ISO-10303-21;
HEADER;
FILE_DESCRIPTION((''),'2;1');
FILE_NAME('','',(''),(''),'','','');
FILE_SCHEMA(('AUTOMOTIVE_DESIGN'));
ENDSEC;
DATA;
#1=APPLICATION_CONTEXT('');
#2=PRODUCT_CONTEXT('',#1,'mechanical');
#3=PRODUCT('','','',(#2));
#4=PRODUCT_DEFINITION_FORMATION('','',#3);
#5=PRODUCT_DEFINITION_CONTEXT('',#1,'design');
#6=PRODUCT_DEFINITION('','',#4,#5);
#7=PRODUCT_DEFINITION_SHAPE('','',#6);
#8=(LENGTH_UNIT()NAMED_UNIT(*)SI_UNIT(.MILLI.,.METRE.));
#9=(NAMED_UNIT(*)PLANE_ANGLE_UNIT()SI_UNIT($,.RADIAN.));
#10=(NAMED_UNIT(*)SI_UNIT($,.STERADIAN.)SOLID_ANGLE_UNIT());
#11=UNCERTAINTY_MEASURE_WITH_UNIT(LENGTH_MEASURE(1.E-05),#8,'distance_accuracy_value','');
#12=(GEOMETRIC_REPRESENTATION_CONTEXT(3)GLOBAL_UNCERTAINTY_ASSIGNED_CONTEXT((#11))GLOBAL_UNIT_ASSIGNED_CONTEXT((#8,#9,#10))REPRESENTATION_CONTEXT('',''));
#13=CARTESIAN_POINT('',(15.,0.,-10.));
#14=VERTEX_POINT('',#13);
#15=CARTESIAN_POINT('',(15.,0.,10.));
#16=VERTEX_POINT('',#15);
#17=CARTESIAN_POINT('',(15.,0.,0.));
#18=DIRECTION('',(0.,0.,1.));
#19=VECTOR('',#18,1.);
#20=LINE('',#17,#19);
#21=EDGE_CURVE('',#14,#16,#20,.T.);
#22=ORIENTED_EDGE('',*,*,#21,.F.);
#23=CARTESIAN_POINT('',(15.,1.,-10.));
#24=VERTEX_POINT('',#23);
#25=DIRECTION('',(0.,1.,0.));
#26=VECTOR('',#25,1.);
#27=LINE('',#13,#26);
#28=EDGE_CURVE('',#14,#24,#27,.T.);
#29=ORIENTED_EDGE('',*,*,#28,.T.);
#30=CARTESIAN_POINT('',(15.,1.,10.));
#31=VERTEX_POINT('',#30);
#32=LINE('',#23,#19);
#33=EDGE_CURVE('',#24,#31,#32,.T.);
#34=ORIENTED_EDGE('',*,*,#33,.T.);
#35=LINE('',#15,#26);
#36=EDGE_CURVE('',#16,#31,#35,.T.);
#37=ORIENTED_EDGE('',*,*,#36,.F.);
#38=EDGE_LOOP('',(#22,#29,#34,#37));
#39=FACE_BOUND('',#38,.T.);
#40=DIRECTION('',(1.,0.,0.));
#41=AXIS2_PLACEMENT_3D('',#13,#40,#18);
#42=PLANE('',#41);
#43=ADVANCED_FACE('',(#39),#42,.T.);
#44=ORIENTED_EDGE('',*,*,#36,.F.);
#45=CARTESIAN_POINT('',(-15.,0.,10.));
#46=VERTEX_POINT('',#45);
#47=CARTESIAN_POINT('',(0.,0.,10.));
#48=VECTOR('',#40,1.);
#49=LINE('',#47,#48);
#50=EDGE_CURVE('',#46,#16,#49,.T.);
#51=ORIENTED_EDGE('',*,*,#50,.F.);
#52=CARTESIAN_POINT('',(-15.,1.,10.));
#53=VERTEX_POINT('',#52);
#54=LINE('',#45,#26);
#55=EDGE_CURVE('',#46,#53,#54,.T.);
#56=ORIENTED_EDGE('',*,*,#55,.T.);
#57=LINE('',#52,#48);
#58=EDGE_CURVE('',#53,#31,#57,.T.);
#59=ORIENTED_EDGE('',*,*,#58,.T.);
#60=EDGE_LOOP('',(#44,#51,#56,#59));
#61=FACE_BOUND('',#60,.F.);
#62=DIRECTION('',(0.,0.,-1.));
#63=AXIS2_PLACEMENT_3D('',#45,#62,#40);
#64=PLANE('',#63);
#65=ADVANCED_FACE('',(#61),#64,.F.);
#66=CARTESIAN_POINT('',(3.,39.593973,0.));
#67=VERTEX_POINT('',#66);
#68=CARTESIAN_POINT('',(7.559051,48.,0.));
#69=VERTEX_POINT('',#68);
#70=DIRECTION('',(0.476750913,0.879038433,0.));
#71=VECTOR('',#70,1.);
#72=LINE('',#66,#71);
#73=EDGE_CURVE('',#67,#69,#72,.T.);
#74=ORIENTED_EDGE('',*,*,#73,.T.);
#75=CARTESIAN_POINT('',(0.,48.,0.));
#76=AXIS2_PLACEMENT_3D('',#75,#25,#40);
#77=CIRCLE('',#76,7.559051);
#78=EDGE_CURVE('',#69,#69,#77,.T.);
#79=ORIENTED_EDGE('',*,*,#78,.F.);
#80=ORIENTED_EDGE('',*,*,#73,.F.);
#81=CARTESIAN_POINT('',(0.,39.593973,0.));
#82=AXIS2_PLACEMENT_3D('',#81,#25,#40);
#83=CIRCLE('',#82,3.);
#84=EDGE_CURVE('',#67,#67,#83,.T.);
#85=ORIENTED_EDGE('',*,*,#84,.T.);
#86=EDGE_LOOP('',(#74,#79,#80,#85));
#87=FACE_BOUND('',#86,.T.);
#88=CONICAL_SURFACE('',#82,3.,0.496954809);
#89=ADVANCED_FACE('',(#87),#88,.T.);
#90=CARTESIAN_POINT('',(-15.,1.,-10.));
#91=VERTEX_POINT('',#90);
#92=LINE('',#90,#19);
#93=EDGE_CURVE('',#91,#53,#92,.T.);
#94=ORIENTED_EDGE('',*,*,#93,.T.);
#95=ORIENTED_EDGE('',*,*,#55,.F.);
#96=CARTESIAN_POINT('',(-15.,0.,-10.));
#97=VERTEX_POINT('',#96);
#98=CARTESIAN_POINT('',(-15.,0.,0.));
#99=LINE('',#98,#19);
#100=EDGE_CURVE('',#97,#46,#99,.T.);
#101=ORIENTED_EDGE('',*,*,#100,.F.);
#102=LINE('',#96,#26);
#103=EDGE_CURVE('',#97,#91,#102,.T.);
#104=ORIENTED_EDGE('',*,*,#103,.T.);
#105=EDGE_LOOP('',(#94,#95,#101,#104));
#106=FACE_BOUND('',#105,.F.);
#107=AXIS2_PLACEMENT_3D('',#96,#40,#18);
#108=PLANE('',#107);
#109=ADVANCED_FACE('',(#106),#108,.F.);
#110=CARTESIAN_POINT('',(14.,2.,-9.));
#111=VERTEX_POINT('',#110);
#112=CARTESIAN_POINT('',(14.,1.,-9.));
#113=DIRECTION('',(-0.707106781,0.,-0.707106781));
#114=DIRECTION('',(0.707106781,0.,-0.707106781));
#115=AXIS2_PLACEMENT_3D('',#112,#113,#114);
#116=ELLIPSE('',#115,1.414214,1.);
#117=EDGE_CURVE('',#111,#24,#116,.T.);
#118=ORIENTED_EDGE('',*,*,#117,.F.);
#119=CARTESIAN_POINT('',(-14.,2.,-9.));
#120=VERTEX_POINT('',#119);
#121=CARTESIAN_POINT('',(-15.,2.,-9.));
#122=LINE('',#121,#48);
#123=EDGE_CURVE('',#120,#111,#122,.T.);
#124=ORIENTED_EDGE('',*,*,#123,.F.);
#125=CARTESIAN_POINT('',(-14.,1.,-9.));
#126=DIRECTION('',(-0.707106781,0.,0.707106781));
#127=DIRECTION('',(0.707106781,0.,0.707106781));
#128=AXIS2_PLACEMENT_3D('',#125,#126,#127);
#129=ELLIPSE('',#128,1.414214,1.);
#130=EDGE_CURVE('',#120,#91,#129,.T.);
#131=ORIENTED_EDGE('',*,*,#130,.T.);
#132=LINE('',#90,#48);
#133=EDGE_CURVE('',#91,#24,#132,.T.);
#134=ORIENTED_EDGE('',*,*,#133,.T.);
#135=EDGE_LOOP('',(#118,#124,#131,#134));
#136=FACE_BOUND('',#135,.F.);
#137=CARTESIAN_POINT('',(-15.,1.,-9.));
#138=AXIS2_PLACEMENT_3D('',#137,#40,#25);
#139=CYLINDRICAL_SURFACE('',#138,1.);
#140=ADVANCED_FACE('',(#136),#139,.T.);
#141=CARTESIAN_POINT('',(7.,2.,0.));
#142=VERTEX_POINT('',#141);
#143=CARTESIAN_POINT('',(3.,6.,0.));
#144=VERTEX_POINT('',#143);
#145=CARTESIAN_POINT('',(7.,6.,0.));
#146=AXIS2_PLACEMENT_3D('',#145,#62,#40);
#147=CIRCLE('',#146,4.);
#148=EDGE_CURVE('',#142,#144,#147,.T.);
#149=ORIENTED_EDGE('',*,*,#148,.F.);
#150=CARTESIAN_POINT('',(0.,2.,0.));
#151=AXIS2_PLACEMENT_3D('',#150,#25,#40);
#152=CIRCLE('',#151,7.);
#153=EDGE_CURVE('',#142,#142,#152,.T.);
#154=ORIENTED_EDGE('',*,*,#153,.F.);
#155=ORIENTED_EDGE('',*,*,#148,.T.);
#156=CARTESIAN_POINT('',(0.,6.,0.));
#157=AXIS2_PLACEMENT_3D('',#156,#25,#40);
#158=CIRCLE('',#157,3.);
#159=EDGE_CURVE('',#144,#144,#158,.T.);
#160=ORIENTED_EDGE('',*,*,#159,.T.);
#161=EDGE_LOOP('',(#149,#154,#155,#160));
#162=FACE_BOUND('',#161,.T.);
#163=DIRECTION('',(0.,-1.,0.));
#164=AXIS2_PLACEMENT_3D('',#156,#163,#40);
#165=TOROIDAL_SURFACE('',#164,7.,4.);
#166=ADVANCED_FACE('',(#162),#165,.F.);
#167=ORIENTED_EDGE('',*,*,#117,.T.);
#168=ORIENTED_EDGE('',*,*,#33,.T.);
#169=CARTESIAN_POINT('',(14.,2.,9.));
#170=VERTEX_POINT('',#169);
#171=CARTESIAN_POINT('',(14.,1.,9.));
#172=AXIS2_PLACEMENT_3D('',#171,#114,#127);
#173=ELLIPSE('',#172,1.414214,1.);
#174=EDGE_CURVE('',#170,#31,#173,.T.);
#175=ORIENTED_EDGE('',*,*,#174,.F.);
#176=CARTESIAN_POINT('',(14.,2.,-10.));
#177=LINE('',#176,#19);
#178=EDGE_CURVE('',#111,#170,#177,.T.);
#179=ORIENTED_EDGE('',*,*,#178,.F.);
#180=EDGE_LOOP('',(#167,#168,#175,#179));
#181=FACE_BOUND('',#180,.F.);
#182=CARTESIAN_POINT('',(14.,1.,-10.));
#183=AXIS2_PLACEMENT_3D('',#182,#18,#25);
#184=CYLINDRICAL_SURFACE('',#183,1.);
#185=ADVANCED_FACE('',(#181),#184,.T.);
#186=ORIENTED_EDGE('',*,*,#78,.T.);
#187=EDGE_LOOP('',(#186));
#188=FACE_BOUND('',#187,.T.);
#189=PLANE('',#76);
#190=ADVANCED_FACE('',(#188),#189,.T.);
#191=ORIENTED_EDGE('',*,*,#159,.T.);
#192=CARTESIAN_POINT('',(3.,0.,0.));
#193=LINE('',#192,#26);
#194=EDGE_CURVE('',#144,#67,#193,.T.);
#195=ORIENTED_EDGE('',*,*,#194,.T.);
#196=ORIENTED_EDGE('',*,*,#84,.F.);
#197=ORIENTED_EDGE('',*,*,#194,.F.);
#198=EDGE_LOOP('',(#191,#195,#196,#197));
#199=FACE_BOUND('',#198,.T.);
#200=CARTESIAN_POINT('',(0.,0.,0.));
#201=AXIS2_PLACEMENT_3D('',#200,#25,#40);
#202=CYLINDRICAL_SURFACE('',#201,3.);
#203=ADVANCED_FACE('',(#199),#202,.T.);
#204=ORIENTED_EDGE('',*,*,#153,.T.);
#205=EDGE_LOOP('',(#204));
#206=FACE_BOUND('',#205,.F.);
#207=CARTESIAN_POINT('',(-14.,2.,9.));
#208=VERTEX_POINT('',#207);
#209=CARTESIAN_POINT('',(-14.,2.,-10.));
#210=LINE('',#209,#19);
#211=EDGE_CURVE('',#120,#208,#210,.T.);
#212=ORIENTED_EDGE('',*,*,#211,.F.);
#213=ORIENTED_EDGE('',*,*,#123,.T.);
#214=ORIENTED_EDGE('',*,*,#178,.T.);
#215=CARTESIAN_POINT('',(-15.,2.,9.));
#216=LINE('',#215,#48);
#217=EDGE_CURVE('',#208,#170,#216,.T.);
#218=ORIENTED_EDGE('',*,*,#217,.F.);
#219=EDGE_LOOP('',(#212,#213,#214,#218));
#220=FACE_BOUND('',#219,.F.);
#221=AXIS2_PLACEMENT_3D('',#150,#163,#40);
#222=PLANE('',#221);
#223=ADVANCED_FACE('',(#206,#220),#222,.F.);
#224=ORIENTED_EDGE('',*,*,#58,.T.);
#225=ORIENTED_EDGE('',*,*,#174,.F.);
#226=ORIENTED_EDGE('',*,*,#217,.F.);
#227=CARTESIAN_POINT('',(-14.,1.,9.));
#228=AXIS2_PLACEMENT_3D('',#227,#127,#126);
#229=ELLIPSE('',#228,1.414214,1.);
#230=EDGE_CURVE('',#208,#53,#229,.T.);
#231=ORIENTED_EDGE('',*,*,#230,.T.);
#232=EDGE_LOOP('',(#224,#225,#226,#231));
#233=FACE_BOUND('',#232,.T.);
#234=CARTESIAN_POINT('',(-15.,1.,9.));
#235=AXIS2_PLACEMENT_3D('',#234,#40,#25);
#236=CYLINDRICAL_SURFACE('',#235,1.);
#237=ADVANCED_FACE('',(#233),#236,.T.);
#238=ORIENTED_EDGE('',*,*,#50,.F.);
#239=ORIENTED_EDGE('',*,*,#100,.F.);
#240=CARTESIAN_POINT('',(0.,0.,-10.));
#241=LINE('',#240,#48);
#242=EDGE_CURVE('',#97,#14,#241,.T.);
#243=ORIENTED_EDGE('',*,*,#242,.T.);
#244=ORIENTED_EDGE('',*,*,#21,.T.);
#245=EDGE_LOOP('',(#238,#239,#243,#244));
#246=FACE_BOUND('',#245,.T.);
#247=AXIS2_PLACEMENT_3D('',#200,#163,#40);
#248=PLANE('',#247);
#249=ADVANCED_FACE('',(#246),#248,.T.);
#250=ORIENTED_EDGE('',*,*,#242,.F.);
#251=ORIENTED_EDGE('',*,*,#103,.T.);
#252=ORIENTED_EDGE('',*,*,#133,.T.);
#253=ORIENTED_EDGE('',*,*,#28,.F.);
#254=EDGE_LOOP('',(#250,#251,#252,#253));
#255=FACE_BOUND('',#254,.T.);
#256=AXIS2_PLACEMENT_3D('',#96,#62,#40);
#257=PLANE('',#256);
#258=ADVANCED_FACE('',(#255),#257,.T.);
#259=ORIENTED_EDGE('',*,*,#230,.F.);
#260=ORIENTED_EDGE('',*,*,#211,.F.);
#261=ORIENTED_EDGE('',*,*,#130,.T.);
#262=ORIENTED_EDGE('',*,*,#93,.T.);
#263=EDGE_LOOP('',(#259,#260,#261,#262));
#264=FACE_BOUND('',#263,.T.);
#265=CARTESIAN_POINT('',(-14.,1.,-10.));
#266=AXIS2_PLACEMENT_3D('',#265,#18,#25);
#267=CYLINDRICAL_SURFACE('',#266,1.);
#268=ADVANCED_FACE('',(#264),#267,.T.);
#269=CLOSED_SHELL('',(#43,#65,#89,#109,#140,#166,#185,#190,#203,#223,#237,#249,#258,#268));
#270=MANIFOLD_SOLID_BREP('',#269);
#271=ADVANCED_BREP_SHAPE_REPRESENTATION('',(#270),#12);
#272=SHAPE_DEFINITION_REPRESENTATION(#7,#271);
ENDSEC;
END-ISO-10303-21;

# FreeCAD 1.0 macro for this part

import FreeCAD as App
import Part
import Sketcher

V = App.Vector


def edges_at(feature, points):
    """Names of the edges that pass closest to the given points."""
    edges = feature.Shape.Edges
    near = lambda p: min(range(len(edges)), key=lambda i: edges[i].distToShape(Part.Vertex(*p))[0])
    return sorted({f"Edge{near(p) + 1}" for p in points})


def add_polygon(sketch, points):
    """Adds a closed chain of lines whose ends are joined by coincident constraints."""
    first, n = sketch.GeometryCount, len(points)
    for a, b in zip(points, points[1:] + points[:1]):
        sketch.addGeometry(Part.LineSegment(App.Vector(*a, 0), App.Vector(*b, 0)), False)
    for i in range(n):
        sketch.addConstraint(Sketcher.Constraint("Coincident", first + i, 2, first + (i + 1) % n, 1))

doc = App.newDocument("Part")
body = doc.addObject("PartDesign::Body", "Body")

# Sketch on XY plane
sketch1 = doc.addObject("Sketcher::SketchObject", "Sketch")
body.addObject(sketch1)
sketch1.AttachmentSupport = (doc.XY_Plane, [""])
sketch1.MapMode = "FlatFace"
add_polygon(sketch1, [(0, 0), (3, 0), (3, 39.593973), (7.559051, 48), (0, 48)])  # lines 0-4
sketch1.addConstraint([
    Sketcher.Constraint("Horizontal", 0),
    Sketcher.Constraint("Vertical", 1),
    Sketcher.Constraint("Horizontal", 3),
    Sketcher.Constraint("Vertical", 4),
    Sketcher.Constraint("Coincident", 4, 2, -1, 1),
    Sketcher.Constraint("DistanceX", 0, 1, 0, 2, 3.0),
    Sketcher.Constraint("DistanceY", 4, 2, 4, 1, 48.0),
    Sketcher.Constraint("DistanceX", 3, 2, 3, 1, 7.559051),
    Sketcher.Constraint("DistanceY", 1, 1, 1, 2, 39.593973),
])
revolution = doc.addObject("PartDesign::Revolution", "Revolution")
body.addObject(revolution)
revolution.Profile = sketch1
revolution.ReferenceAxis = (sketch1, ["V_Axis"])
revolution.Angle = 360

# Sketch on XZ plane
sketch2 = doc.addObject("Sketcher::SketchObject", "Sketch001")
body.addObject(sketch2)
sketch2.AttachmentSupport = (doc.XZ_Plane, [""])
sketch2.MapMode = "FlatFace"
add_polygon(sketch2, [(-15, 10), (-15, -10), (15, -10), (15, 10)])  # lines 0-3
sketch2.addConstraint([
    Sketcher.Constraint("Vertical", 0),
    Sketcher.Constraint("Horizontal", 1),
    Sketcher.Constraint("Vertical", 2),
    Sketcher.Constraint("Horizontal", 3),
    Sketcher.Constraint("Symmetric", 0, 2, 2, 2, -1, 1),
    Sketcher.Constraint("DistanceX", 1, 1, 1, 2, 30.0),
    Sketcher.Constraint("DistanceY", 0, 2, 0, 1, 20.0),
])
pad1 = doc.addObject("PartDesign::Pad", "Pad")
body.addObject(pad1)
pad1.Profile = sketch2
pad1.Length = 2
pad1.Reversed = True
doc.recompute()

fillet = doc.addObject("PartDesign::Fillet", "Fillet")
body.addObject(fillet)
fillet.Base = (pad1, edges_at(pad1, [(-3, 2, 0)]))
fillet.Radius = 4
doc.recompute()

fillet2 = doc.addObject("PartDesign::Fillet", "Fillet001")
body.addObject(fillet2)
fillet2.Base = (fillet, edges_at(fillet, [
    (-15, 2, 0),
    (0, 2, 10),
    (0, 2, -10),
    (15, 2, 0),
]))
fillet2.Radius = 1

doc.recompute()
